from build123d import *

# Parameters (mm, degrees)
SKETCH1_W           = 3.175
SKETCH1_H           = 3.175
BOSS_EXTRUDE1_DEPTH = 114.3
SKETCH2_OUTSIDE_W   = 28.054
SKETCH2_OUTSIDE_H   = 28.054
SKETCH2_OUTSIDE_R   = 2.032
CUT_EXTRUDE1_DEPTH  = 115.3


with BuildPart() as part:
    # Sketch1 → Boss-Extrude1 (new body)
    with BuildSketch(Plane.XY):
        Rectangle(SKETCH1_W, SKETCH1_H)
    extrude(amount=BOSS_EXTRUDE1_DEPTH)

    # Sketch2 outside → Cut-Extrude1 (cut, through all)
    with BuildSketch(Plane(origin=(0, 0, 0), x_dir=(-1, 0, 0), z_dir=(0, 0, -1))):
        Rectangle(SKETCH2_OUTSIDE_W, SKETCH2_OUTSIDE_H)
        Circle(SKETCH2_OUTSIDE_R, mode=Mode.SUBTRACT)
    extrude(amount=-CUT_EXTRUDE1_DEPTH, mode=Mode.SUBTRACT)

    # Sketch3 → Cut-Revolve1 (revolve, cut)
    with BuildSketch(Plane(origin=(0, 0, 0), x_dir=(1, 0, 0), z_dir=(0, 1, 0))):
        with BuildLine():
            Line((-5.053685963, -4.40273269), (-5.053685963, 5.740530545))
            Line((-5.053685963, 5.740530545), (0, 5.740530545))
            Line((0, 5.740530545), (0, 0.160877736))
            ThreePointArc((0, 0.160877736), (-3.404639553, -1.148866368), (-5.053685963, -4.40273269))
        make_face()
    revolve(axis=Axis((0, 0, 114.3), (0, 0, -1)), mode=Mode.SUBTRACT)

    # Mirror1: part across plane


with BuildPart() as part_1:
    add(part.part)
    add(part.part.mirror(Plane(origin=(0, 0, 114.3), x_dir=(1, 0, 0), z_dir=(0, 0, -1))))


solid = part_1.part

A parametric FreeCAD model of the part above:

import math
import FreeCAD as App
import Part
import Sketcher

V = App.Vector
Q = App.Units.Quantity

doc = App.newDocument("Part")
body = doc.addObject("PartDesign::Body", "Body")

# Sketch on XY plane
sketch1 = body.newObject("Sketcher::SketchObject", "Sketch")
sketch1.AttachmentSupport = (doc.getObject("XY_Plane"), [""])
sketch1.MapMode = "FlatFace"
sketch1.addGeometry(Part.LineSegment(V(-1.5875, 1.5875, 0), V(-1.5875, -1.5875, 0)), False)
sketch1.addGeometry(Part.LineSegment(V(-1.5875, -1.5875, 0), V(1.5875, -1.5875, 0)), False)
sketch1.addGeometry(Part.LineSegment(V(1.5875, -1.5875, 0), V(1.5875, 1.5875, 0)), False)
sketch1.addGeometry(Part.LineSegment(V(1.5875, 1.5875, 0), V(-1.5875, 1.5875, 0)), False)
sketch1.addConstraint(Sketcher.Constraint("Coincident", 0, 2, 1, 1))
sketch1.addConstraint(Sketcher.Constraint("Coincident", 1, 2, 2, 1))
sketch1.addConstraint(Sketcher.Constraint("Coincident", 2, 2, 3, 1))
sketch1.addConstraint(Sketcher.Constraint("Coincident", 3, 2, 0, 1))
sketch1.addConstraint(Sketcher.Constraint("Vertical", 0))
sketch1.addConstraint(Sketcher.Constraint("Horizontal", 1))
sketch1.addConstraint(Sketcher.Constraint("Vertical", 2))
sketch1.addConstraint(Sketcher.Constraint("Horizontal", 3))
sketch1.addConstraint(Sketcher.Constraint("Symmetric", 0, 2, 2, 2, -1, 1))
sketch1.addConstraint(Sketcher.Constraint("Equal", 3, 0))
sketch1.addConstraint(Sketcher.Constraint("DistanceX", 1, 1, 1, 2, Q("0.125 in")))
pad1 = body.newObject("PartDesign::Pad", "Pad")
pad1.Profile = sketch1
pad1.Length = Q("4.5 in")

# Sketch on XY plane
sketch2 = body.newObject("Sketcher::SketchObject", "Sketch001")
sketch2.AttachmentSupport = (doc.getObject("XY_Plane"), [""])
sketch2.MapMode = "FlatFace"
sketch2.addGeometry(Part.LineSegment(V(14.027, 14.027, 0), V(14.027, -14.027, 0)), False)
sketch2.addGeometry(Part.LineSegment(V(14.027, -14.027, 0), V(-14.027, -14.027, 0)), False)
sketch2.addGeometry(Part.LineSegment(V(-14.027, -14.027, 0), V(-14.027, 14.027, 0)), False)
sketch2.addGeometry(Part.LineSegment(V(-14.027, 14.027, 0), V(14.027, 14.027, 0)), False)
sketch2.addGeometry(Part.Circle(V(0, 0, 0), V(0, 0, 1), 2.032), False)
sketch2.addConstraint(Sketcher.Constraint("Coincident", 0, 2, 1, 1))
sketch2.addConstraint(Sketcher.Constraint("Coincident", 1, 2, 2, 1))
sketch2.addConstraint(Sketcher.Constraint("Coincident", 2, 2, 3, 1))
sketch2.addConstraint(Sketcher.Constraint("Coincident", 3, 2, 0, 1))
sketch2.addConstraint(Sketcher.Constraint("Vertical", 0))
sketch2.addConstraint(Sketcher.Constraint("Horizontal", 1))
sketch2.addConstraint(Sketcher.Constraint("Vertical", 2))
sketch2.addConstraint(Sketcher.Constraint("Horizontal", 3))
sketch2.addConstraint(Sketcher.Constraint("Coincident", 4, 3, -1, 1))
sketch2.addConstraint(Sketcher.Constraint("Symmetric", 0, 2, 2, 2, -1, 1))
sketch2.addConstraint(Sketcher.Constraint("Equal", 3, 0))
sketch2.addConstraint(Sketcher.Constraint("Diameter", 4, Q("0.16 in")))
sketch2.addConstraint(Sketcher.Constraint("DistanceX", 1, 2, 1, 1, Q("28.054 mm")))
pocket1 = body.newObject("PartDesign::Pocket", "Pocket")
pocket1.Profile = sketch2
pocket1.Type = "ThroughAll"
pocket1.Reversed = True

# Sketch on XZ plane
sketch3 = body.newObject("Sketcher::SketchObject", "Sketch002")
sketch3.AttachmentSupport = (doc.getObject("XZ_Plane"), [""])
sketch3.MapMode = "FlatFace"
sketch3.addGeometry(Part.LineSegment(V(-5.053686, -5.740531, 0), V(-5.053686, 4.402733, 0)), False)
sketch3.addGeometry(Part.ArcOfCircle(Part.Circle(V(0, 4.919122, 0), V(0, 0, 1), 5.08), math.radians(-174.165721), math.radians(-90)), False)
sketch3.addGeometry(Part.LineSegment(V(0, -0.160878, 0), V(0, -5.740531, 0)), False)
sketch3.addGeometry(Part.LineSegment(V(0, -5.740531, 0), V(-5.053686, -5.740531, 0)), False)
sketch3.addConstraint(Sketcher.Constraint("Coincident", 0, 2, 1, 1))
sketch3.addConstraint(Sketcher.Constraint("Coincident", 1, 2, 2, 1))
sketch3.addConstraint(Sketcher.Constraint("Coincident", 2, 2, 3, 1))
sketch3.addConstraint(Sketcher.Constraint("Coincident", 3, 2, 0, 1))
sketch3.addConstraint(Sketcher.Constraint("Vertical", 0))
sketch3.addConstraint(Sketcher.Constraint("Vertical", 2))
sketch3.addConstraint(Sketcher.Constraint("Horizontal", 3))
sketch3.addConstraint(Sketcher.Constraint("PointOnObject", 1, 3, -2))
sketch3.addConstraint(Sketcher.Constraint("PointOnObject", 1, 2, -2))
sketch3.addConstraint(Sketcher.Constraint("Radius", 1, Q("0.2 in")))
sketch3.addConstraint(Sketcher.Constraint("DistanceX", 3, 2, 3, 1, Q("5.053686 mm")))
sketch3.addConstraint(Sketcher.Constraint("DistanceY", 0, 1, 0, 2, Q("10.143263 mm")))
sketch3.addConstraint(Sketcher.Constraint("DistanceY", 2, 2, -1, 1, Q("5.740531 mm")))
groove = body.newObject("PartDesign::Groove", "Groove")
groove.Profile = sketch3
groove.ReferenceAxis = (sketch3, ["V_Axis"])
groove.Angle = 360
body2 = doc.addObject("PartDesign::Body", "Body001")
doc.recompute()

body2.BaseFeature = body
doc.recompute()

mirroring = doc.addObject("Part::Mirroring", "Mirroring")
mirroring.Source = body
mirroring.Base = V(0, 0, 114.3)
mirroring.Normal = V(0, 0, -1)
body3 = doc.addObject("PartDesign::Body", "Body002")
body3.BaseFeature = mirroring
boolean = body2.newObject("PartDesign::Boolean", "Boolean")
boolean.Type = "Fuse"
boolean.addObjects([body3])
doc.recompute()
mirroring.Visibility = False

doc.recompute()
